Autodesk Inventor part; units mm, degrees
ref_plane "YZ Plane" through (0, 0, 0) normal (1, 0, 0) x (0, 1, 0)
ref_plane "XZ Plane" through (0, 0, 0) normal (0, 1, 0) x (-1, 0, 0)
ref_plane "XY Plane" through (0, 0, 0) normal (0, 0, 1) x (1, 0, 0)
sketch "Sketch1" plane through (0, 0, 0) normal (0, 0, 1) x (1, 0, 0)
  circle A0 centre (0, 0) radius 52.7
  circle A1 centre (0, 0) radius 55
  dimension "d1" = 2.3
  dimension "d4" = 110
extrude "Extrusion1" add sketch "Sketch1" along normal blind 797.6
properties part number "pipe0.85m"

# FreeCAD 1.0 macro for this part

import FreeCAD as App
import Part
import Sketcher
Q = App.Units.Quantity

doc = App.newDocument("Part")
params = doc.addObject("Spreadsheet::Sheet", "Params")
for row, (alias, value) in enumerate([
    ("sketch1_diameter", "110 mm"),
    ("sketch1_diameter2", "105.4 mm"),
    ("pad1_length", "797.6 mm"),
], start=1):
    params.set(f"A{row}", alias)
    params.set(f"B{row}", "=" + value)
    params.setAlias(f"B{row}", alias)

body = doc.addObject("PartDesign::Body", "Body")

# Sketch on XY plane
sketch1 = body.newObject("Sketcher::SketchObject", "Sketch")
sketch1.AttachmentSupport = (doc.getObject("XY_Plane"), [""])
sketch1.MapMode = "FlatFace"
sketch1.addGeometry([
    Part.Circle(App.Vector(0, 0, 0), App.Vector(0, 0, 1), 55),
    Part.Circle(App.Vector(0, 0, 0), App.Vector(0, 0, 1), 52.7),
], False)
sketch1.addConstraint([
    Sketcher.Constraint("Coincident", 0, 3, -1, 1),
    Sketcher.Constraint("Coincident", 1, 3, -1, 1),
    Sketcher.Constraint("Diameter", 0, Q("110 mm")),
    Sketcher.Constraint("Diameter", 1, Q("105.4 mm")),
])
sketch1.setExpression("Constraints[2]", "Params.sketch1_diameter")
sketch1.setExpression("Constraints[3]", "Params.sketch1_diameter2")
pad1 = body.newObject("PartDesign::Pad", "Pad")
pad1.Profile = sketch1
pad1.setExpression("Length", "Params.pad1_length")

doc.recompute()
